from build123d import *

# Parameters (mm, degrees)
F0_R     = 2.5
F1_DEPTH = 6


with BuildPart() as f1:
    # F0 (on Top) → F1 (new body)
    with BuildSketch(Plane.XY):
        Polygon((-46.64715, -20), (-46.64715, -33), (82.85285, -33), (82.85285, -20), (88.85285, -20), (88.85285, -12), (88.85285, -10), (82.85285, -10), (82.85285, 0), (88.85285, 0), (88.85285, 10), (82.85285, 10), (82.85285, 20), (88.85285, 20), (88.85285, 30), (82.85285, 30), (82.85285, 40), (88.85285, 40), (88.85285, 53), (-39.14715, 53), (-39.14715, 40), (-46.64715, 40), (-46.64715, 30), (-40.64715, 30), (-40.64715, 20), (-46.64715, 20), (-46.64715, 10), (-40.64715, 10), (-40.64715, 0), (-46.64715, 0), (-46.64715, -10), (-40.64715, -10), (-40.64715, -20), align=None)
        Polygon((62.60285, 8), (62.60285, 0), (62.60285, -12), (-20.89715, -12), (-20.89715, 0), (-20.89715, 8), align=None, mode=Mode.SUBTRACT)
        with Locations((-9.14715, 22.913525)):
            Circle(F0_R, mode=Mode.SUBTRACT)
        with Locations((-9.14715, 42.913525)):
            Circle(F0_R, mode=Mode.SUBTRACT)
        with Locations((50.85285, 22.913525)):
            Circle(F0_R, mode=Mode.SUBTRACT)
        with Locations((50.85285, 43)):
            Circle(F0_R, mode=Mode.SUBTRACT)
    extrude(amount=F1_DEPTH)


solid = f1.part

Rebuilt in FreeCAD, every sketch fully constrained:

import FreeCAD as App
import Part
import Sketcher

V = App.Vector

doc = App.newDocument("Part")
body = doc.addObject("PartDesign::Body", "Body")

sketch1 = body.newObject("Sketcher::SketchObject", "Sketch")
sketch1.AttachmentSupport = (doc.getObject("XY_Plane"), [""])
sketch1.MapMode = "FlatFace"
sketch1.addGeometry([
    Part.LineSegment(V(-46.6, -20, 0), V(-46.6, -33, 0)),
    Part.LineSegment(V(-46.6, -33, 0), V(82.9, -33, 0)),
    Part.LineSegment(V(82.9, -33, 0), V(82.9, -20, 0)),
    Part.LineSegment(V(82.9, -20, 0), V(88.9, -20, 0)),
    Part.LineSegment(V(88.9, -20, 0), V(88.9, -10, 0)),
    Part.LineSegment(V(88.9, -10, 0), V(82.9, -10, 0)),
    Part.LineSegment(V(82.9, -10, 0), V(82.9, 0, 0)),
    Part.LineSegment(V(82.9, 0, 0), V(88.9, 0, 0)),
    Part.LineSegment(V(88.9, 0, 0), V(88.9, 10, 0)),
    Part.LineSegment(V(88.9, 10, 0), V(82.9, 10, 0)),
    Part.LineSegment(V(82.9, 10, 0), V(82.9, 20, 0)),
    Part.LineSegment(V(82.9, 20, 0), V(88.9, 20, 0)),
    Part.LineSegment(V(88.9, 20, 0), V(88.9, 30, 0)),
    Part.LineSegment(V(88.9, 30, 0), V(82.9, 30, 0)),
    Part.LineSegment(V(82.9, 30, 0), V(82.9, 40, 0)),
    Part.LineSegment(V(82.9, 40, 0), V(88.9, 40, 0)),
    Part.LineSegment(V(88.9, 40, 0), V(88.9, 53, 0)),
    Part.LineSegment(V(88.9, 53, 0), V(-39.1, 53, 0)),
    Part.LineSegment(V(-39.1, 53, 0), V(-39.1, 40, 0)),
    Part.LineSegment(V(-39.1, 40, 0), V(-46.6, 40, 0)),
    Part.LineSegment(V(-46.6, 40, 0), V(-46.6, 30, 0)),
    Part.LineSegment(V(-46.6, 30, 0), V(-40.6, 30, 0)),
    Part.LineSegment(V(-40.6, 30, 0), V(-40.6, 20, 0)),
    Part.LineSegment(V(-40.6, 20, 0), V(-46.6, 20, 0)),
    Part.LineSegment(V(-46.6, 20, 0), V(-46.6, 10, 0)),
    Part.LineSegment(V(-46.6, 10, 0), V(-40.6, 10, 0)),
    Part.LineSegment(V(-40.6, 10, 0), V(-40.6, 0, 0)),
    Part.LineSegment(V(-40.6, 0, 0), V(-46.6, 0, 0)),
    Part.LineSegment(V(-46.6, 0, 0), V(-46.6, -10, 0)),
    Part.LineSegment(V(-46.6, -10, 0), V(-40.6, -10, 0)),
    Part.LineSegment(V(-40.6, -10, 0), V(-40.6, -20, 0)),
    Part.LineSegment(V(-40.6, -20, 0), V(-46.6, -20, 0)),
    Part.LineSegment(V(-20.9, 8, 0), V(62.6, 8, 0)),
    Part.LineSegment(V(62.6, 8, 0), V(62.6, -12, 0)),
    Part.LineSegment(V(62.6, -12, 0), V(-20.9, -12, 0)),
    Part.LineSegment(V(-20.9, -12, 0), V(-20.9, 8, 0)),
    Part.Circle(V(-9.1, 22.9, 0), V(0, 0, 1), 2.5),
    Part.Circle(V(-9.1, 42.9, 0), V(0, 0, 1), 2.5),
    Part.Circle(V(50.9, 22.9, 0), V(0, 0, 1), 2.5),
    Part.Circle(V(50.9, 43, 0), V(0, 0, 1), 2.5),
], False)
sketch1.addConstraint([
    Sketcher.Constraint("Coincident", 0, 2, 1, 1),
    Sketcher.Constraint("Coincident", 1, 2, 2, 1),
    Sketcher.Constraint("Coincident", 2, 2, 3, 1),
    Sketcher.Constraint("Coincident", 3, 2, 4, 1),
    Sketcher.Constraint("Coincident", 4, 2, 5, 1),
    Sketcher.Constraint("Coincident", 5, 2, 6, 1),
    Sketcher.Constraint("Coincident", 6, 2, 7, 1),
    Sketcher.Constraint("Coincident", 7, 2, 8, 1),
    Sketcher.Constraint("Coincident", 8, 2, 9, 1),
    Sketcher.Constraint("Coincident", 9, 2, 10, 1),
    Sketcher.Constraint("Coincident", 10, 2, 11, 1),
    Sketcher.Constraint("Coincident", 11, 2, 12, 1),
    Sketcher.Constraint("Coincident", 12, 2, 13, 1),
    Sketcher.Constraint("Coincident", 13, 2, 14, 1),
    Sketcher.Constraint("Coincident", 14, 2, 15, 1),
    Sketcher.Constraint("Coincident", 15, 2, 16, 1),
    Sketcher.Constraint("Coincident", 16, 2, 17, 1),
    Sketcher.Constraint("Coincident", 17, 2, 18, 1),
    Sketcher.Constraint("Coincident", 18, 2, 19, 1),
    Sketcher.Constraint("Coincident", 19, 2, 20, 1),
    Sketcher.Constraint("Coincident", 20, 2, 21, 1),
    Sketcher.Constraint("Coincident", 21, 2, 22, 1),
    Sketcher.Constraint("Coincident", 22, 2, 23, 1),
    Sketcher.Constraint("Coincident", 23, 2, 24, 1),
    Sketcher.Constraint("Coincident", 24, 2, 25, 1),
    Sketcher.Constraint("Coincident", 25, 2, 26, 1),
    Sketcher.Constraint("Coincident", 26, 2, 27, 1),
    Sketcher.Constraint("Coincident", 27, 2, 28, 1),
    Sketcher.Constraint("Coincident", 28, 2, 29, 1),
    Sketcher.Constraint("Coincident", 29, 2, 30, 1),
    Sketcher.Constraint("Coincident", 30, 2, 31, 1),
    Sketcher.Constraint("Coincident", 31, 2, 0, 1),
    Sketcher.Constraint("Coincident", 32, 2, 33, 1),
    Sketcher.Constraint("Coincident", 33, 2, 34, 1),
    Sketcher.Constraint("Coincident", 34, 2, 35, 1),
    Sketcher.Constraint("Coincident", 35, 2, 32, 1),
    Sketcher.Constraint("Vertical", 0),
    Sketcher.Constraint("Horizontal", 1),
    Sketcher.Constraint("Vertical", 2),
    Sketcher.Constraint("Horizontal", 3),
    Sketcher.Constraint("Vertical", 4),
    Sketcher.Constraint("Horizontal", 5),
    Sketcher.Constraint("Vertical", 6),
    Sketcher.Constraint("Horizontal", 7),
    Sketcher.Constraint("Vertical", 8),
    Sketcher.Constraint("Horizontal", 9),
    Sketcher.Constraint("Vertical", 10),
    Sketcher.Constraint("Horizontal", 11),
    Sketcher.Constraint("Vertical", 12),
    Sketcher.Constraint("Horizontal", 13),
    Sketcher.Constraint("Vertical", 14),
    Sketcher.Constraint("Horizontal", 15),
    Sketcher.Constraint("Vertical", 16),
    Sketcher.Constraint("Horizontal", 17),
    Sketcher.Constraint("Vertical", 18),
    Sketcher.Constraint("Horizontal", 19),
    Sketcher.Constraint("Vertical", 20),
    Sketcher.Constraint("Horizontal", 21),
    Sketcher.Constraint("Vertical", 22),
    Sketcher.Constraint("Horizontal", 23),
    Sketcher.Constraint("Vertical", 24),
    Sketcher.Constraint("Horizontal", 25),
    Sketcher.Constraint("Vertical", 26),
    Sketcher.Constraint("Horizontal", 27),
    Sketcher.Constraint("Vertical", 28),
    Sketcher.Constraint("Horizontal", 29),
    Sketcher.Constraint("Vertical", 30),
    Sketcher.Constraint("Horizontal", 31),
    Sketcher.Constraint("Horizontal", 32),
    Sketcher.Constraint("Vertical", 33),
    Sketcher.Constraint("Horizontal", 34),
    Sketcher.Constraint("Vertical", 35),
    Sketcher.Constraint("Equal", 36, 37),
    Sketcher.Constraint("Equal", 37, 38),
    Sketcher.Constraint("Equal", 38, 39),
    Sketcher.Constraint("Symmetric", 4, 2, 8, 2, -1),
    Sketcher.Constraint("Symmetric", 2, 2, 10, 2, -1),
    Sketcher.Constraint("Symmetric", 24, 2, 28, 2, -1),
    Sketcher.Constraint("Symmetric", 22, 2, 30, 2, -1),
    Sketcher.Constraint("PointOnObject", 6, 2, -1),
    Sketcher.Constraint("PointOnObject", 26, 2, -1),
    Sketcher.Constraint("Horizontal", 36, 3, 38, 3),
    Sketcher.Constraint("Horizontal", 15, 2, 18, 2),
    Sketcher.Constraint("Horizontal", 13, 2, 20, 2),
    Sketcher.Constraint("Horizontal", 11, 2, 22, 2),
    Sketcher.Constraint("Horizontal", 9, 2, 24, 2),
    Sketcher.Constraint("Vertical", 36, 3, 37, 3),
    Sketcher.Constraint("Vertical", 38, 3, 39, 3),
    Sketcher.Constraint("Vertical", 2, 2, 5, 2),
    Sketcher.Constraint("Vertical", 8, 2, 11, 2),
    Sketcher.Constraint("Vertical", 10, 2, 13, 2),
    Sketcher.Constraint("Vertical", 12, 2, 15, 2),
    Sketcher.Constraint("Vertical", 0, 2, 19, 2),
    Sketcher.Constraint("Vertical", 20, 2, 23, 2),
    Sketcher.Constraint("Vertical", 22, 2, 25, 2),
    Sketcher.Constraint("Equal", 15, 21),
    Sketcher.Constraint("Equal", 4, 6),
    Sketcher.Constraint("Equal", 10, 12),
    Sketcher.Constraint("Equal", 12, 14),
    Sketcher.Constraint("Equal", 2, 16),
    Sketcher.Constraint("Diameter", 36, 5.0),
    Sketcher.Constraint("DistanceX", 3, 1, 3, 2, 6.0),
    Sketcher.Constraint("DistanceX", 17, 2, 17, 1, 128.0),
    Sketcher.Constraint("DistanceY", 0, 2, 0, 1, 13.0),
    Sketcher.Constraint("DistanceY", 4, 1, 4, 2, 10.0),
    Sketcher.Constraint("DistanceY", 33, 2, 33, 1, 20.0),
    Sketcher.Constraint("DistanceX", 1, 1, 1, 2, 129.5),
    Sketcher.Constraint("DistanceX", 32, 1, 32, 2, 83.5),
    Sketcher.Constraint("DistanceY", -1, 1, 39, 3, 43.0),
    Sketcher.Constraint("DistanceY", -1, 1, 32, 2, 8.0),
    Sketcher.Constraint("DistanceY", 36, 3, 37, 3, 20.0),
    Sketcher.Constraint("DistanceX", 36, 3, 38, 3, 60.0),
    Sketcher.Constraint("DistanceX", 38, 3, 1, 2, 32.0),
    Sketcher.Constraint("DistanceX", 38, 3, 32, 2, 11.75),
    Sketcher.Constraint("DistanceX", 36, 3, -1, 1, 9.14715),
    Sketcher.Constraint("DistanceY", -1, 1, 36, 3, 22.913525),
])
pad1 = body.newObject("PartDesign::Pad", "Pad")
pad1.Profile = sketch1
pad1.Length = 6

doc.recompute()
